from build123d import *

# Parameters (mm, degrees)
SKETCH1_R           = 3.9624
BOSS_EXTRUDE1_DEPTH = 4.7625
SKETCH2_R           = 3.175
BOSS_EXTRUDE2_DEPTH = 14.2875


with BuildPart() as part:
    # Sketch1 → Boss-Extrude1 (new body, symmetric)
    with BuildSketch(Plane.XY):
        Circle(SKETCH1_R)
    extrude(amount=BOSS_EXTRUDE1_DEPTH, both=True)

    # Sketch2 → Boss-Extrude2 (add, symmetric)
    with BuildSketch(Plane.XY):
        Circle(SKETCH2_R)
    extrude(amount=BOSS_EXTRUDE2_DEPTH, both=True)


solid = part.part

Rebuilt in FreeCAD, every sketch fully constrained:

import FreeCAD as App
import Part
import Sketcher

V = App.Vector
Q = App.Units.Quantity

doc = App.newDocument("Part")
body = doc.addObject("PartDesign::Body", "Body")

sketch1 = body.newObject("Sketcher::SketchObject", "Sketch")
sketch1.AttachmentSupport = (doc.getObject("XY_Plane"), [""])
sketch1.MapMode = "FlatFace"
sketch1.addGeometry(Part.Circle(V(0, 0, 0), V(0, 0, 1), 3.9624), False)
sketch1.addConstraint(Sketcher.Constraint("Coincident", 0, 3, -1, 1))
sketch1.addConstraint(Sketcher.Constraint("Diameter", 0, Q("0.312 in")))
pad1 = body.newObject("PartDesign::Pad", "Pad")
pad1.Profile = sketch1
pad1.Length = Q("0.375 in")
pad1.Midplane = True

sketch2 = body.newObject("Sketcher::SketchObject", "Sketch001")
sketch2.AttachmentSupport = (doc.getObject("XY_Plane"), [""])
sketch2.MapMode = "FlatFace"
sketch2.addGeometry(Part.Circle(V(0, 0, 0), V(0, 0, 1), 3.175), False)
sketch2.addConstraint(Sketcher.Constraint("Coincident", 0, 3, -1, 1))
sketch2.addConstraint(Sketcher.Constraint("Diameter", 0, Q("0.25 in")))
pad2 = body.newObject("PartDesign::Pad", "Pad001")
pad2.Profile = sketch2
pad2.Length = Q("1.125 in")
pad2.Midplane = True

doc.recompute()
